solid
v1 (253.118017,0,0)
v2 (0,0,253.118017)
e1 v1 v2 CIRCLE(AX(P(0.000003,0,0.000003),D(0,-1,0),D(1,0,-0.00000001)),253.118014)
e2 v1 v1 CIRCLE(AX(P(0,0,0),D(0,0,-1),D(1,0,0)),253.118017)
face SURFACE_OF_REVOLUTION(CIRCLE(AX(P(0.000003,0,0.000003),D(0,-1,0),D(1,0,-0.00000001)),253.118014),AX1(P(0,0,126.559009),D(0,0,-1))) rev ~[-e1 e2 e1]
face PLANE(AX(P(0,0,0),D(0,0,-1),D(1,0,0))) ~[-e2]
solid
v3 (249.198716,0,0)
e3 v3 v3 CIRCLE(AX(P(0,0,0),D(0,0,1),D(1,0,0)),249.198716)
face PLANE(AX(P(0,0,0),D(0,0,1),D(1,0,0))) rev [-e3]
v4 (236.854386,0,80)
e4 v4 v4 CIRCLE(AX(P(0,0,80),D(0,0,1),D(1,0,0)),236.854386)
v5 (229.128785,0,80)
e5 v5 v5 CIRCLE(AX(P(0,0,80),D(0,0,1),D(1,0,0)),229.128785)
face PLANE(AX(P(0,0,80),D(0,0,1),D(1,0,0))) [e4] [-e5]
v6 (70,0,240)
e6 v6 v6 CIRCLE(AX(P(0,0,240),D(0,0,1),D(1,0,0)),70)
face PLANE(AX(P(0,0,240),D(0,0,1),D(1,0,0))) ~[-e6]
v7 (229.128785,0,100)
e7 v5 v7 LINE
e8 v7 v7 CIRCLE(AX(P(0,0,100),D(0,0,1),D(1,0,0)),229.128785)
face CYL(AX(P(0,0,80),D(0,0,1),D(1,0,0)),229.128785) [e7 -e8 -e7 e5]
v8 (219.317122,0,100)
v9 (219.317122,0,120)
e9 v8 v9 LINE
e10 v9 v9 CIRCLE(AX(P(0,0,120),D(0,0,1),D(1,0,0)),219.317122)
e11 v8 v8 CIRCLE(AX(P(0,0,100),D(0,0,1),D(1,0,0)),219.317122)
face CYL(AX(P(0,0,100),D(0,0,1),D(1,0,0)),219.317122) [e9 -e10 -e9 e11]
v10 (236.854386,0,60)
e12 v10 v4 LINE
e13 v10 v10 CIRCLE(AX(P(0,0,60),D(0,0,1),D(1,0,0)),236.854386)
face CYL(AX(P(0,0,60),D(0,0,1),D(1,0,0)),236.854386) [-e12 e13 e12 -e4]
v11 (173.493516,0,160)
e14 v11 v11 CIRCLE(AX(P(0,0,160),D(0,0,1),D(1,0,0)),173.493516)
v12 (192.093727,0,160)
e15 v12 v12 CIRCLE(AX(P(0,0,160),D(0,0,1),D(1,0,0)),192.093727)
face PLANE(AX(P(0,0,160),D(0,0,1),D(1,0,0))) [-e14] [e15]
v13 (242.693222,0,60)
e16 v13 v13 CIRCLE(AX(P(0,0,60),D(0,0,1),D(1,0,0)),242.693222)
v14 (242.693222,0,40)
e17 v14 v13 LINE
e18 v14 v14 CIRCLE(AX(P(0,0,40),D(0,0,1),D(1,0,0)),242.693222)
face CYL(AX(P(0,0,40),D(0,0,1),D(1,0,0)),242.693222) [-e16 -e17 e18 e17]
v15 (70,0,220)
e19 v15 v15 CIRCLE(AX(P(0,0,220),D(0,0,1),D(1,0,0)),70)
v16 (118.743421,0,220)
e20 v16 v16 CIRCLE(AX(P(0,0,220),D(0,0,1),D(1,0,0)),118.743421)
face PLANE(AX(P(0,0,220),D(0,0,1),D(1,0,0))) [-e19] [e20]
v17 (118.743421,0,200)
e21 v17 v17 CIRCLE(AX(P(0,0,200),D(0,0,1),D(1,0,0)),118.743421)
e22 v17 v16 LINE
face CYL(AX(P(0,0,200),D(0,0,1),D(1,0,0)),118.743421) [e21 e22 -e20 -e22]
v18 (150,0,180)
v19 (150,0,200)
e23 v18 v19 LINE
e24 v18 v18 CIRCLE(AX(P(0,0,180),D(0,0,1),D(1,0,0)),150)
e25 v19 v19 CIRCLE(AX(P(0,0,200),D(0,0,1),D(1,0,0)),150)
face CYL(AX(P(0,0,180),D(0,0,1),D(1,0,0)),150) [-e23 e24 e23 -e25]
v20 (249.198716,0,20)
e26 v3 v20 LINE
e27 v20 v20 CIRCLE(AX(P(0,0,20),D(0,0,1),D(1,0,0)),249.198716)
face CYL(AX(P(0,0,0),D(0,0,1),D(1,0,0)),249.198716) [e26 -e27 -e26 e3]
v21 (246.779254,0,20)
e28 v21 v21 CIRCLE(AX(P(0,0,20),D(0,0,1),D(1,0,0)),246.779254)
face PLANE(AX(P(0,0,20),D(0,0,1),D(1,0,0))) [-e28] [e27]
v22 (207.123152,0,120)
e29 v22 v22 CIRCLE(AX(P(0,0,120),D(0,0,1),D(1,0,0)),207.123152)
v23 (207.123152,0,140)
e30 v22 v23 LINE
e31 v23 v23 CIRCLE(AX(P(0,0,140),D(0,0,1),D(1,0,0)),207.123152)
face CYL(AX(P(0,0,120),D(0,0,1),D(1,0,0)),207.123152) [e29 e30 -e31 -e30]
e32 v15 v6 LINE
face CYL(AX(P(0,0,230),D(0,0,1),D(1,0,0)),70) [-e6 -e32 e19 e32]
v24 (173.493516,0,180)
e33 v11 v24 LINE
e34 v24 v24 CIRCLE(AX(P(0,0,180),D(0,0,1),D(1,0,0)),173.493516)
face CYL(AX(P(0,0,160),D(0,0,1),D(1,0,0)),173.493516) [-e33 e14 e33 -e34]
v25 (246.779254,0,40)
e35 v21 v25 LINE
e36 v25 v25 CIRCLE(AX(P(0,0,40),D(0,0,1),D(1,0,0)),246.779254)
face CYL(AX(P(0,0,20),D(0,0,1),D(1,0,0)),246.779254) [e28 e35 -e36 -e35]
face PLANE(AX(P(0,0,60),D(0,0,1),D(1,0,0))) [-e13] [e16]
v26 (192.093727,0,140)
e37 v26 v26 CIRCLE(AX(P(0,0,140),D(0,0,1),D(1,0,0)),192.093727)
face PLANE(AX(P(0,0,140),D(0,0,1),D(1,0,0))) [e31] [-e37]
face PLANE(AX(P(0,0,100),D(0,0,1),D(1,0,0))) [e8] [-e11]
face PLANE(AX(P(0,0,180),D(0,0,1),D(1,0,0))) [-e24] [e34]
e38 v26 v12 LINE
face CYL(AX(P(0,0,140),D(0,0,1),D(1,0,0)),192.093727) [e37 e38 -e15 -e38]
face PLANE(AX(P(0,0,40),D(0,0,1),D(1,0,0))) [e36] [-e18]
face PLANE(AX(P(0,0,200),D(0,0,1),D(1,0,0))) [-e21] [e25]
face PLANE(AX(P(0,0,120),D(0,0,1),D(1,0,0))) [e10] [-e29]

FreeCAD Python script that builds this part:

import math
import FreeCAD as App
import Part
import Sketcher
Q = App.Units.Quantity


def add_polygon(sketch, points):
    """Adds a closed chain of lines whose ends are joined by coincident constraints."""
    first, n = sketch.GeometryCount, len(points)
    for a, b in zip(points, points[1:] + points[:1]):
        sketch.addGeometry(Part.LineSegment(App.Vector(*a, 0), App.Vector(*b, 0)), False)
    for i in range(n):
        sketch.addConstraint(Sketcher.Constraint("Coincident", first + i, 2, first + (i + 1) % n, 1))

doc = App.newDocument("Part")
body = doc.addObject("PartDesign::Body", "Body")

# Sketch on XZ plane
sketch1 = body.newObject("Sketcher::SketchObject", "Sketch")
sketch1.AttachmentSupport = (doc.getObject("XZ_Plane"), [""])
sketch1.MapMode = "FlatFace"
add_polygon(sketch1, [(0, 240), (0, 0), (249.198716, 0), (249.198716, 20), (246.779254, 20), (246.779254, 40), (242.693222, 40), (242.693222, 60), (236.854386, 60), (236.854386, 80), (229.128785, 80), (229.128785, 100), (219.317122, 100), (219.317122, 120), (207.123152, 120), (207.123152, 140), (192.093727, 140), (192.093727, 160), (173.493516, 160), (173.493516, 180), (150, 180), (150, 200), (118.743421, 200), (118.743421, 220), (70, 220), (70, 240)])  # lines 0-25
sketch1.addConstraint([
    Sketcher.Constraint("Vertical", 0),
    Sketcher.Constraint("Horizontal", 1),
    Sketcher.Constraint("Vertical", 2),
    Sketcher.Constraint("Horizontal", 3),
    Sketcher.Constraint("Vertical", 4),
    Sketcher.Constraint("Horizontal", 5),
    Sketcher.Constraint("Vertical", 6),
    Sketcher.Constraint("Horizontal", 7),
    Sketcher.Constraint("Vertical", 8),
    Sketcher.Constraint("Horizontal", 9),
    Sketcher.Constraint("Vertical", 10),
    Sketcher.Constraint("Horizontal", 11),
    Sketcher.Constraint("Vertical", 12),
    Sketcher.Constraint("Horizontal", 13),
    Sketcher.Constraint("Vertical", 14),
    Sketcher.Constraint("Horizontal", 15),
    Sketcher.Constraint("Vertical", 16),
    Sketcher.Constraint("Horizontal", 17),
    Sketcher.Constraint("Vertical", 18),
    Sketcher.Constraint("Horizontal", 19),
    Sketcher.Constraint("Vertical", 20),
    Sketcher.Constraint("Horizontal", 21),
    Sketcher.Constraint("Vertical", 22),
    Sketcher.Constraint("Horizontal", 23),
    Sketcher.Constraint("Vertical", 24),
    Sketcher.Constraint("Horizontal", 25),
    Sketcher.Constraint("Coincident", 0, 2, -1, 1),
    Sketcher.Constraint("Equal", 2, 4),
    Sketcher.Constraint("Equal", 4, 6),
    Sketcher.Constraint("Equal", 6, 8),
    Sketcher.Constraint("Equal", 8, 10),
    Sketcher.Constraint("Equal", 10, 12),
    Sketcher.Constraint("Equal", 12, 14),
    Sketcher.Constraint("Equal", 14, 16),
    Sketcher.Constraint("Equal", 16, 18),
    Sketcher.Constraint("Equal", 18, 20),
    Sketcher.Constraint("Equal", 20, 22),
    Sketcher.Constraint("Equal", 22, 24),
    Sketcher.Constraint("DistanceX", 25, 2, 25, 1, Q("70 mm")),
    Sketcher.Constraint("DistanceY", 0, 2, 0, 1, Q("240 mm")),
    Sketcher.Constraint("DistanceX", -1, 1, 19, 2, Q("150 mm")),
    Sketcher.Constraint("DistanceX", 9, 2, 9, 1, Q("7.725601 mm")),
    Sketcher.Constraint("DistanceX", 3, 2, 3, 1, Q("2.419462 mm")),
    Sketcher.Constraint("DistanceX", 13, 2, 13, 1, Q("12.19397 mm")),
    Sketcher.Constraint("DistanceX", 17, 2, 17, 1, Q("18.600211 mm")),
    Sketcher.Constraint("DistanceX", 21, 2, 21, 1, Q("31.256579 mm")),
    Sketcher.Constraint("DistanceX", 11, 2, 6, 2, Q("23.3761 mm")),
    Sketcher.Constraint("DistanceX", 1, 1, 1, 2, Q("249.198716 mm")),
    Sketcher.Constraint("DistanceX", 5, 2, 5, 1, Q("4.086032 mm")),
    Sketcher.Constraint("DistanceX", 7, 2, 7, 1, Q("5.838836 mm")),
    Sketcher.Constraint("DistanceX", 15, 2, 15, 1, Q("15.029425 mm")),
])
revolution = body.newObject("PartDesign::Revolution", "Revolution")
revolution.Profile = sketch1
revolution.ReferenceAxis = (sketch1, ["V_Axis"])
revolution.Angle = 360
body2 = doc.addObject("PartDesign::Body", "Body001")

# Sketch on XZ plane
sketch2 = body2.newObject("Sketcher::SketchObject", "Sketch001")
sketch2.AttachmentSupport = (doc.getObject("XZ_Plane001"), [""])
sketch2.MapMode = "FlatFace"
sketch2.addGeometry([
    Part.LineSegment(App.Vector(0, 0, 0), App.Vector(253.118017, 0, 0)),
    Part.ArcOfCircle(Part.Circle(App.Vector(0.000003, 0.000003, 0), App.Vector(0, 0, 1), 253.118014), math.radians(-0.000001), math.radians(90.000001)),
    Part.LineSegment(App.Vector(0, 253.118017, 0), App.Vector(0, 0, 0)),
], False)
sketch2.addConstraint([
    Sketcher.Constraint("Coincident", 0, 2, 1, 1),
    Sketcher.Constraint("Coincident", 1, 2, 2, 1),
    Sketcher.Constraint("Coincident", 2, 2, 0, 1),
    Sketcher.Constraint("Horizontal", 0),
    Sketcher.Constraint("Vertical", 2),
    Sketcher.Constraint("Coincident", 1, 3, -1, 1),
    Sketcher.Constraint("Coincident", 2, 2, -1, 1),
    Sketcher.Constraint("Radius", 1, Q("253.118014 mm")),
])
revolution2 = body2.newObject("PartDesign::Revolution", "Revolution001")
revolution2.Profile = sketch2
revolution2.ReferenceAxis = (sketch2, ["V_Axis"])
revolution2.Angle = 360

doc.recompute()
